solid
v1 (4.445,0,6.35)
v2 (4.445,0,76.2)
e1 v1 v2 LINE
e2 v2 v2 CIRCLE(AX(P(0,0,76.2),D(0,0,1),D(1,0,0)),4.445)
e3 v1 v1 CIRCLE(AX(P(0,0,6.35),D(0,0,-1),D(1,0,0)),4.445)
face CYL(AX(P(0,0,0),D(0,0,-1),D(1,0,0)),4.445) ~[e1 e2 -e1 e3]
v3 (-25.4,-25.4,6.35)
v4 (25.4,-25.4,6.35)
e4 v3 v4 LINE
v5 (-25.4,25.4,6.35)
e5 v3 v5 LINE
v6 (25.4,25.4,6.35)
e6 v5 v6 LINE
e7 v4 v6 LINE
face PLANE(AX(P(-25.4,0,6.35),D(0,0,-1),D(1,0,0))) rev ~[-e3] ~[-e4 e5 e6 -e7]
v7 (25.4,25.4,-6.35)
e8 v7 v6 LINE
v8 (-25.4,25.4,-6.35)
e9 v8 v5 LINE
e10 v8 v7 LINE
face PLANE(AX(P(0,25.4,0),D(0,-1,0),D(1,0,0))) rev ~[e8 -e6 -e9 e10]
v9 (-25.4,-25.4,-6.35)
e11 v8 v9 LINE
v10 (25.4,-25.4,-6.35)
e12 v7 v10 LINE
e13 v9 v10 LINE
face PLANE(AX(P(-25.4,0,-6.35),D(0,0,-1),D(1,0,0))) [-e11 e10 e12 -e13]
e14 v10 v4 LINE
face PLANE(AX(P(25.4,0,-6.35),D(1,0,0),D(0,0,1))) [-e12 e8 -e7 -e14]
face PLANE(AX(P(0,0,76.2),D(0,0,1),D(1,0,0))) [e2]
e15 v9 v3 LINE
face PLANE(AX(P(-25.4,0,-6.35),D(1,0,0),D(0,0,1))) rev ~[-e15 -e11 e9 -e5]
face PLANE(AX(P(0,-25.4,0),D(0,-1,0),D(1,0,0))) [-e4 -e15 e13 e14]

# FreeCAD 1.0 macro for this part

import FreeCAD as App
import Part
import Sketcher

V = App.Vector
Q = App.Units.Quantity

doc = App.newDocument("Part")
body = doc.addObject("PartDesign::Body", "Body")

# Sketch on XZ plane
sketch1 = doc.addObject("Sketcher::SketchObject", "Sketch")
body.addObject(sketch1)
sketch1.AttachmentSupport = (doc.XZ_Plane, [""])
sketch1.MapMode = "FlatFace"
sketch1.addGeometry([
    Part.LineSegment(V(-25, 6, 0), V(-25, -6, 0)),
    Part.LineSegment(V(-25, -6, 0), V(25, -6, 0)),
    Part.LineSegment(V(25, -6, 0), V(25, 6, 0)),
    Part.LineSegment(V(25, 6, 0), V(-25, 6, 0)),
], False)
sketch1.addConstraint([
    Sketcher.Constraint("Coincident", 0, 2, 1, 1),
    Sketcher.Constraint("Coincident", 1, 2, 2, 1),
    Sketcher.Constraint("Coincident", 2, 2, 3, 1),
    Sketcher.Constraint("Coincident", 3, 2, 0, 1),
    Sketcher.Constraint("Vertical", 0),
    Sketcher.Constraint("Horizontal", 1),
    Sketcher.Constraint("Vertical", 2),
    Sketcher.Constraint("Horizontal", 3),
    Sketcher.Constraint("Symmetric", 0, 2, 2, 2, -1, 1),
    Sketcher.Constraint("DistanceX", 1, 1, 1, 2, Q("2 in")),
    Sketcher.Constraint("DistanceY", 0, 2, 0, 1, Q("0.5 in")),
])
pad1 = doc.addObject("PartDesign::Pad", "Pad")
body.addObject(pad1)
pad1.Profile = sketch1
pad1.Length = Q("2 in")
pad1.Midplane = True

# Sketch on XY plane
sketch2 = doc.addObject("Sketcher::SketchObject", "Sketch001")
body.addObject(sketch2)
sketch2.AttachmentSupport = (doc.XY_Plane, [""])
sketch2.MapMode = "FlatFace"
sketch2.addGeometry(Part.Circle(V(0, 0, 0), V(0, 0, 1), 4.4), False)
sketch2.addConstraint([
    Sketcher.Constraint("Coincident", 0, 3, -1, 1),
    Sketcher.Constraint("Diameter", 0, Q("0.35 in")),
])
pad2 = doc.addObject("PartDesign::Pad", "Pad001")
body.addObject(pad2)
pad2.Profile = sketch2
pad2.Length = Q("3 in")

doc.recompute()
